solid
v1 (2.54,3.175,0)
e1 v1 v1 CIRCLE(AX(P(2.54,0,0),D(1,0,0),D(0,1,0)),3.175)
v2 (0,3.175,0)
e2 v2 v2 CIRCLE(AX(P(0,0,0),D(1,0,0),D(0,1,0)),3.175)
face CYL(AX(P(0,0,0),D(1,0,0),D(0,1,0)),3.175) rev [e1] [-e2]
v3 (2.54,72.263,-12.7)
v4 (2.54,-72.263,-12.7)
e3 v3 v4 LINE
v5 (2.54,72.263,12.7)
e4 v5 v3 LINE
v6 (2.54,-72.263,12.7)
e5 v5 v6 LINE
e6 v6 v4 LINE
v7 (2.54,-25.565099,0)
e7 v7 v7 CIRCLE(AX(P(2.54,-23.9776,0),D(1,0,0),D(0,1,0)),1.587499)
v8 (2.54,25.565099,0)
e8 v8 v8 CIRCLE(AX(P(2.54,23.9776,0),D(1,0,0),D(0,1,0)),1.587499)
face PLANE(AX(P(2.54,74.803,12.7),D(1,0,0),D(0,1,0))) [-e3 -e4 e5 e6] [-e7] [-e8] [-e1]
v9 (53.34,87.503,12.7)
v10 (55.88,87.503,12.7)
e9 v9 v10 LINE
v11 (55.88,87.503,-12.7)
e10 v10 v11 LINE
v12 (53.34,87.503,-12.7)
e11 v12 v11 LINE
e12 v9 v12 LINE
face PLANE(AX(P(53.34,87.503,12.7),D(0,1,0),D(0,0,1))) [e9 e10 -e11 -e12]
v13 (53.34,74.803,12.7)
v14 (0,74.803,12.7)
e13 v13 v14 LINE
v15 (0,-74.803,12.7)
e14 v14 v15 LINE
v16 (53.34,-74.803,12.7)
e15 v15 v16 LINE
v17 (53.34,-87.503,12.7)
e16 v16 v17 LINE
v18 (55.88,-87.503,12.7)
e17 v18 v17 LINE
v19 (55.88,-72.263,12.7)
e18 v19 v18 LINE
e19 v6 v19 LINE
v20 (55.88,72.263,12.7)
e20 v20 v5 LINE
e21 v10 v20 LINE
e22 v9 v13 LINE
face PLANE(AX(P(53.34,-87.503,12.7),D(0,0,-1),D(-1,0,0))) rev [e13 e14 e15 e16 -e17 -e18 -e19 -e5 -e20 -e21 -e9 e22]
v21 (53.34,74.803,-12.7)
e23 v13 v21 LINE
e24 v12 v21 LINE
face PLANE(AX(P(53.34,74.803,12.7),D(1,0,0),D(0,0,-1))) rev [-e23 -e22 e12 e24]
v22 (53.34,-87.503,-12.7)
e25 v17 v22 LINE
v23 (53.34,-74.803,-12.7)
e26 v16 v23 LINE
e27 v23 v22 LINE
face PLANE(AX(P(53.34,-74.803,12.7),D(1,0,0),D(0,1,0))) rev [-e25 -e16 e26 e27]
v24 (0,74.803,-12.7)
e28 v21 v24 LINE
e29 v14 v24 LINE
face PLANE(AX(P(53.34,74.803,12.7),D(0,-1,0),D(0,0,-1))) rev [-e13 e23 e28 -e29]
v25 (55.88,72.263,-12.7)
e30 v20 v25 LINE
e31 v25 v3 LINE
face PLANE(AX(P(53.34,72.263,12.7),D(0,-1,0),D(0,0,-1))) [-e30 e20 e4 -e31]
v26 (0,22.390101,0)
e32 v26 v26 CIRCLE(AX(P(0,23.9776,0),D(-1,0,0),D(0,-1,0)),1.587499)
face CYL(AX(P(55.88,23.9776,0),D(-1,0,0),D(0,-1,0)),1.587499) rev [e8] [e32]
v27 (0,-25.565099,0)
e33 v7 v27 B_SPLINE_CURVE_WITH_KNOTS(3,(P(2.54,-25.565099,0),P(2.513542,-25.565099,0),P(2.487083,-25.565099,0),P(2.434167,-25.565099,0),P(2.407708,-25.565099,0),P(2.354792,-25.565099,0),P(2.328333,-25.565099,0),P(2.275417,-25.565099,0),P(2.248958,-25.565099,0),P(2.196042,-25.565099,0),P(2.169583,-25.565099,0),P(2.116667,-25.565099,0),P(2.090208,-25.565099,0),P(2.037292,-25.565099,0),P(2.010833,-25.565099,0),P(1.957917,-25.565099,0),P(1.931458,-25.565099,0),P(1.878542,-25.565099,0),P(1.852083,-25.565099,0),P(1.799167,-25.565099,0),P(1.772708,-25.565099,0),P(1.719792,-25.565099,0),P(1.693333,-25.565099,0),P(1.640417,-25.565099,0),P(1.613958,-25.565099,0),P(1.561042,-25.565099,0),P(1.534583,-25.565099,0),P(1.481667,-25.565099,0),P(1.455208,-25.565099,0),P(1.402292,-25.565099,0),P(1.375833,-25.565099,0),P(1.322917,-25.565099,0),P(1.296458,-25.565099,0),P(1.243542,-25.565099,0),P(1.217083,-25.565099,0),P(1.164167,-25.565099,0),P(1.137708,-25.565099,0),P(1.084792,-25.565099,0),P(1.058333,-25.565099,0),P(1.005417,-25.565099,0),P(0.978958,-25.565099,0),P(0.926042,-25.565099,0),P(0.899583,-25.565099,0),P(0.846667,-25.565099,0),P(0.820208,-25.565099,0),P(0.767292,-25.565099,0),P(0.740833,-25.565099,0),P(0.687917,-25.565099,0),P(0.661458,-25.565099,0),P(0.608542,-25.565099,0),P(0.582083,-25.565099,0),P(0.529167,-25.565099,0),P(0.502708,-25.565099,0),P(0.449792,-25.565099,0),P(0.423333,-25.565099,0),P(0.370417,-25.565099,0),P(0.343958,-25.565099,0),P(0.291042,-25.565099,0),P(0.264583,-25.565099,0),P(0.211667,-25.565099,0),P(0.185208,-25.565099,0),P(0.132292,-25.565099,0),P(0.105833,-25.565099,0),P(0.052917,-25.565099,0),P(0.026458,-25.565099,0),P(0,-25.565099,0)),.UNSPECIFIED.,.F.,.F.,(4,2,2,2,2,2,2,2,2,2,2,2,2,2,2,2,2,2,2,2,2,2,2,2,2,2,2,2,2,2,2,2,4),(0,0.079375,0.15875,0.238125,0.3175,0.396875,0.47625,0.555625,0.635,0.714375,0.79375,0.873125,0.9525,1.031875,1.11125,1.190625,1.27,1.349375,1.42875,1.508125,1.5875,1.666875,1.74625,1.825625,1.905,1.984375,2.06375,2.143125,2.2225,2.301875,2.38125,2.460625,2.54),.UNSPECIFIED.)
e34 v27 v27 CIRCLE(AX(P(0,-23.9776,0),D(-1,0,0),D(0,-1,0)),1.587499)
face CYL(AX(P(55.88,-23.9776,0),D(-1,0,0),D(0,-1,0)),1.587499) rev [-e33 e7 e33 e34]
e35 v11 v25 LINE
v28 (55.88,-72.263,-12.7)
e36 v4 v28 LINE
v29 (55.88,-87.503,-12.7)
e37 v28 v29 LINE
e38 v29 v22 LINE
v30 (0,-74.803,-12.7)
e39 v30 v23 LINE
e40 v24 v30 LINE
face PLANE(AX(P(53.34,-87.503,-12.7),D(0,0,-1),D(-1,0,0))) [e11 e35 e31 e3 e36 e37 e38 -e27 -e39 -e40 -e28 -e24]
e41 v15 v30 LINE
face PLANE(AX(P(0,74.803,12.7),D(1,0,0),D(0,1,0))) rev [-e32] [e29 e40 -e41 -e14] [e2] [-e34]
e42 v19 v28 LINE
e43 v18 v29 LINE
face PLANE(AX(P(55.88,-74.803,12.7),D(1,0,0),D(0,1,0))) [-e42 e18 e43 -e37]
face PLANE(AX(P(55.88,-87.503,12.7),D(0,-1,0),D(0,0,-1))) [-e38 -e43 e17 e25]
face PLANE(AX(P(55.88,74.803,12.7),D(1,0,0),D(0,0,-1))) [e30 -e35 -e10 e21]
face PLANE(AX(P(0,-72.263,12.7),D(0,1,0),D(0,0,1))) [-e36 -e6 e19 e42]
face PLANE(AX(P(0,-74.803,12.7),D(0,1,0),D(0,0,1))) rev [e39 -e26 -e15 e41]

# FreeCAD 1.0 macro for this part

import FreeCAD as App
import Part
import Sketcher

V = App.Vector
Q = App.Units.Quantity

doc = App.newDocument("Part")
params = doc.addObject("Spreadsheet::Sheet", "Params")
for row, (alias, value) in enumerate([
    ("sketch1_width", "2.1 in"),
    ("sketch1_width2", "0.1 in"),
    ("sketch1_height", "0.5 in"),
    ("sketch1_height2", "0.6 in"),
    ("sketch1_height3", "5.89 in"),
    ("pad1_length", "1 in"),
    ("sketch2_diameter", "0.25 in"),
    ("sketch3_diameter", "0.1249999 in"),
    ("sketch4_diameter", "0.1249999 in"),
], start=1):
    params.set(f"A{row}", alias)
    params.set(f"B{row}", "=" + value)
    params.setAlias(f"B{row}", alias)

body = doc.addObject("PartDesign::Body", "Body")

# Sketch on XY plane
sketch1 = doc.addObject("Sketcher::SketchObject", "Sketch")
body.addObject(sketch1)
sketch1.AttachmentSupport = (doc.XY_Plane, [""])
sketch1.MapMode = "FlatFace"
sketch1.addGeometry([
    Part.LineSegment(V(53.3, 87.5, 0), V(53.3, 74.8, 0)),  # 0
    Part.LineSegment(V(53.3, 74.8, 0), V(0, 74.8, 0)),  # 1
    Part.LineSegment(V(0, 74.8, 0), V(0, -74.8, 0)),  # 2
    Part.LineSegment(V(0, -74.8, 0), V(53.3, -74.8, 0)),  # 3
    Part.LineSegment(V(53.3, -74.8, 0), V(53.3, -87.5, 0)),  # 4
    Part.LineSegment(V(53.3, -87.5, 0), V(55.9, -87.5, 0)),  # 5
    Part.LineSegment(V(55.9, -87.5, 0), V(55.9, -72.3, 0)),  # 6
    Part.LineSegment(V(55.9, -72.3, 0), V(2.5, -72.3, 0)),  # 7
    Part.LineSegment(V(2.5, -72.3, 0), V(2.5, 72.3, 0)),  # 8
    Part.LineSegment(V(2.5, 72.3, 0), V(55.9, 72.3, 0)),  # 9
    Part.LineSegment(V(55.9, 72.3, 0), V(55.9, 87.5, 0)),  # 10
    Part.LineSegment(V(55.9, 87.5, 0), V(53.3, 87.5, 0)),  # 11
], False)
sketch1.addConstraint([
    Sketcher.Constraint("Coincident", 0, 2, 1, 1),
    Sketcher.Constraint("Coincident", 1, 2, 2, 1),
    Sketcher.Constraint("Coincident", 2, 2, 3, 1),
    Sketcher.Constraint("Coincident", 3, 2, 4, 1),
    Sketcher.Constraint("Coincident", 4, 2, 5, 1),
    Sketcher.Constraint("Coincident", 5, 2, 6, 1),
    Sketcher.Constraint("Coincident", 6, 2, 7, 1),
    Sketcher.Constraint("Coincident", 7, 2, 8, 1),
    Sketcher.Constraint("Coincident", 8, 2, 9, 1),
    Sketcher.Constraint("Coincident", 9, 2, 10, 1),
    Sketcher.Constraint("Coincident", 10, 2, 11, 1),
    Sketcher.Constraint("Coincident", 11, 2, 0, 1),
    Sketcher.Constraint("Vertical", 0),
    Sketcher.Constraint("Horizontal", 1),
    Sketcher.Constraint("Vertical", 2),
    Sketcher.Constraint("Horizontal", 3),
    Sketcher.Constraint("Vertical", 4),
    Sketcher.Constraint("Horizontal", 5),
    Sketcher.Constraint("Vertical", 6),
    Sketcher.Constraint("Horizontal", 7),
    Sketcher.Constraint("Vertical", 8),
    Sketcher.Constraint("Horizontal", 9),
    Sketcher.Constraint("Vertical", 10),
    Sketcher.Constraint("Horizontal", 11),
    Sketcher.Constraint("Symmetric", 1, 2, 2, 2, -1, 1),
    Sketcher.Constraint("Symmetric", 6, 2, 9, 2, -1),
    Sketcher.Constraint("Symmetric", 4, 2, 11, 2, -1),
    Sketcher.Constraint("Equal", 3, 7),
    Sketcher.Constraint("DistanceX", 1, 2, 1, 1, Q("2.1 in")),
    Sketcher.Constraint("DistanceX", 5, 1, 5, 2, Q("0.1 in")),
    Sketcher.Constraint("DistanceY", 0, 2, 0, 1, Q("0.5 in")),
    Sketcher.Constraint("DistanceY", 6, 1, 6, 2, Q("0.6 in")),
    Sketcher.Constraint("DistanceY", 2, 2, 2, 1, Q("5.89 in")),
])
sketch1.setExpression("Constraints[28]", "Params.sketch1_width")
sketch1.setExpression("Constraints[29]", "Params.sketch1_width2")
sketch1.setExpression("Constraints[30]", "Params.sketch1_height")
sketch1.setExpression("Constraints[31]", "Params.sketch1_height2")
sketch1.setExpression("Constraints[32]", "Params.sketch1_height3")
pad1 = doc.addObject("PartDesign::Pad", "Pad")
body.addObject(pad1)
pad1.Profile = sketch1
pad1.setExpression("Length", "Params.pad1_length")
pad1.Midplane = True

# Sketch on YZ plane
sketch2 = doc.addObject("Sketcher::SketchObject", "Sketch001")
body.addObject(sketch2)
sketch2.AttachmentSupport = (doc.YZ_Plane, [""])
sketch2.MapMode = "FlatFace"
sketch2.AttachmentOffset = App.Placement(V(0, 0, 0.1 * 25.4), App.Rotation())
sketch2.addGeometry(Part.Circle(V(0, 0, 0), V(0, 0, 1), 3.2), False)
sketch2.addConstraint([
    Sketcher.Constraint("Coincident", 0, 3, -1, 1),
    Sketcher.Constraint("Diameter", 0, Q("0.25 in")),
])
sketch2.setExpression("Constraints[1]", "Params.sketch2_diameter")
pocket1 = doc.addObject("PartDesign::Pocket", "Pocket")
body.addObject(pocket1)
pocket1.Profile = sketch2
pocket1.Type = "ThroughAll"

# Sketch on YZ plane
sketch3 = doc.addObject("Sketcher::SketchObject", "Sketch002")
body.addObject(sketch3)
sketch3.AttachmentSupport = (doc.YZ_Plane, [""])
sketch3.MapMode = "FlatFace"
sketch3.addGeometry(Part.Circle(V(24, 0, 0), V(0, 0, 1), 1.6), False)
sketch3.addConstraint([
    Sketcher.Constraint("PointOnObject", 0, 3, -1),
    Sketcher.Constraint("Diameter", 0, Q("0.1249999 in")),
    Sketcher.Constraint("DistanceX", -1, 1, 0, 3, Q("0.944 in")),
])
sketch3.setExpression("Constraints[1]", "Params.sketch3_diameter")
pocket2 = doc.addObject("PartDesign::Pocket", "Pocket001")
body.addObject(pocket2)
pocket2.Profile = sketch3
pocket2.Type = "ThroughAll"
pocket2.Reversed = True

# Sketch on YZ plane
sketch4 = doc.addObject("Sketcher::SketchObject", "Sketch003")
body.addObject(sketch4)
sketch4.AttachmentSupport = (doc.YZ_Plane, [""])
sketch4.MapMode = "FlatFace"
sketch4.addGeometry(Part.Circle(V(-24, 0, 0), V(0, 0, 1), 1.6), False)
sketch4.addConstraint([
    Sketcher.Constraint("PointOnObject", 0, 3, -1),
    Sketcher.Constraint("Diameter", 0, Q("0.1249999 in")),
    Sketcher.Constraint("DistanceX", 0, 3, -1, 1, Q("0.944 in")),
])
sketch4.setExpression("Constraints[1]", "Params.sketch4_diameter")
pocket3 = doc.addObject("PartDesign::Pocket", "Pocket002")
body.addObject(pocket3)
pocket3.Profile = sketch4
pocket3.Type = "ThroughAll"
pocket3.Reversed = True

doc.recompute()
